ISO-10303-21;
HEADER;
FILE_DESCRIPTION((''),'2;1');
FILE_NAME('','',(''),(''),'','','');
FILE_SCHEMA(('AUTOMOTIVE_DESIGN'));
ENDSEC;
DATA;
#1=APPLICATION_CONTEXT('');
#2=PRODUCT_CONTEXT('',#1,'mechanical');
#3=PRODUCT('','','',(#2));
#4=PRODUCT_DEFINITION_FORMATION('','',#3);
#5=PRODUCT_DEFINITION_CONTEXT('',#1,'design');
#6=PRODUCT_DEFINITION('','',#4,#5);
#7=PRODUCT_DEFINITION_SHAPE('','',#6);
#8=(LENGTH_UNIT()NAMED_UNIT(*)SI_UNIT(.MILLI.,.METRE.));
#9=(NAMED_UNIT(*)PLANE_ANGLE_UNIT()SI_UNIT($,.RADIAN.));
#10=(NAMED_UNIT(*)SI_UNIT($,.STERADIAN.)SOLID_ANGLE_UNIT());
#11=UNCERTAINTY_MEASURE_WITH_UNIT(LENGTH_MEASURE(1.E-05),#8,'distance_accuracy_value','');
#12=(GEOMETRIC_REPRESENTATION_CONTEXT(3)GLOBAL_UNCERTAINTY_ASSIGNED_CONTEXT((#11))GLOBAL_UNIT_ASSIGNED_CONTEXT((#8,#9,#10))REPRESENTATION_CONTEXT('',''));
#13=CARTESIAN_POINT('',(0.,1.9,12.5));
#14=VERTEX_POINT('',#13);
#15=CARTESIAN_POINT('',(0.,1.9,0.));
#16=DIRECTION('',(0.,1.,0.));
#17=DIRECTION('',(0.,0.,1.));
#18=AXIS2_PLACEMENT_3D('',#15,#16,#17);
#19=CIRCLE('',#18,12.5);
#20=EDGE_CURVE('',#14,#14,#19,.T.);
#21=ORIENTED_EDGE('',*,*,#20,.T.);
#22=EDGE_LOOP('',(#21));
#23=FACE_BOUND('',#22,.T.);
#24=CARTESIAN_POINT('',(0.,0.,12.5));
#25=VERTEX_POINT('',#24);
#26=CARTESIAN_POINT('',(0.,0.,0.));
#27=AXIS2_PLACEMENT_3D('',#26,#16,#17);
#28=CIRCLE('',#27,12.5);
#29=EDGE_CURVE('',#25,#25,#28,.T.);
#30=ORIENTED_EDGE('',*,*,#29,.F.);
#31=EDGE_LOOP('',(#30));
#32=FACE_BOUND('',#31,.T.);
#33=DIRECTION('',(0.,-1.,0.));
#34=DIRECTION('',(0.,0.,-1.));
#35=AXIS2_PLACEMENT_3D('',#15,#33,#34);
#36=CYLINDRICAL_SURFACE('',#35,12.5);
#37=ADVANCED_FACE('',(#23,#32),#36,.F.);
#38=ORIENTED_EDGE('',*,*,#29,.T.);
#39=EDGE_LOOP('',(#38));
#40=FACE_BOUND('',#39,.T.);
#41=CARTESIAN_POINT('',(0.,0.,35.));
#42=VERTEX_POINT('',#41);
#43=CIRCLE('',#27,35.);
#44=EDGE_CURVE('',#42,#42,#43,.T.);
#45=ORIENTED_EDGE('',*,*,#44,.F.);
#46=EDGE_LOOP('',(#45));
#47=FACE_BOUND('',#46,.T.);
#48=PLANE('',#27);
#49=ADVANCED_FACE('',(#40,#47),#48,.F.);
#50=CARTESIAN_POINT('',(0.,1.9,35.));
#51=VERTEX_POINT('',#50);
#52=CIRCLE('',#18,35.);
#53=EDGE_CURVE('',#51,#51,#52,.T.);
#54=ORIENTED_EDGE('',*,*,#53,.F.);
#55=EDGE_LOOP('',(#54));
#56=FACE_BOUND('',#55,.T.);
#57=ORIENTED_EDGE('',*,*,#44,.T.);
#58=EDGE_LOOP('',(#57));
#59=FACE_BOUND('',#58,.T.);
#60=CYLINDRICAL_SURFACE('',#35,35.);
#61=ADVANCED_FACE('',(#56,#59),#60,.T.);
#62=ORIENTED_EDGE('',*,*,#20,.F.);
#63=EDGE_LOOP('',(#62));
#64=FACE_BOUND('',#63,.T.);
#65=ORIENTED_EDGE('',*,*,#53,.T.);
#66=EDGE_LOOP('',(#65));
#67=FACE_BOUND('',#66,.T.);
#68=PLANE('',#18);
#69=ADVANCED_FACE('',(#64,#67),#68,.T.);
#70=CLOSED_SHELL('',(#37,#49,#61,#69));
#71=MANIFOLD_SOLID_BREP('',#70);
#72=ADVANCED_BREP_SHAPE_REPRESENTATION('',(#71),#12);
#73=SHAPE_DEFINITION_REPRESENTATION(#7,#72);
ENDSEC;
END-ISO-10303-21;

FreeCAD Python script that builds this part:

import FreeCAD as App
import Part
import Sketcher
Q = App.Units.Quantity

doc = App.newDocument("Part")
body = doc.addObject("PartDesign::Body", "Body")

# Sketch on XZ plane
sketch1 = body.newObject("Sketcher::SketchObject", "Sketch")
sketch1.AttachmentSupport = (doc.getObject("XZ_Plane"), [""])
sketch1.MapMode = "FlatFace"
sketch1.addGeometry([
    Part.Circle(App.Vector(0, 0, 0), App.Vector(0, 0, 1), 35),
    Part.Circle(App.Vector(0, 0, 0), App.Vector(0, 0, 1), 12),
], False)
sketch1.addConstraint([
    Sketcher.Constraint("Coincident", 0, 3, -1, 1),
    Sketcher.Constraint("Coincident", 1, 3, -1, 1),
    Sketcher.Constraint("Diameter", 0, Q("70 mm")),
    Sketcher.Constraint("Diameter", 1, Q("25 mm")),
])
pad1 = body.newObject("PartDesign::Pad", "Pad")
pad1.Profile = sketch1
pad1.Length = 1.9
pad1.Reversed = True

doc.recompute()
